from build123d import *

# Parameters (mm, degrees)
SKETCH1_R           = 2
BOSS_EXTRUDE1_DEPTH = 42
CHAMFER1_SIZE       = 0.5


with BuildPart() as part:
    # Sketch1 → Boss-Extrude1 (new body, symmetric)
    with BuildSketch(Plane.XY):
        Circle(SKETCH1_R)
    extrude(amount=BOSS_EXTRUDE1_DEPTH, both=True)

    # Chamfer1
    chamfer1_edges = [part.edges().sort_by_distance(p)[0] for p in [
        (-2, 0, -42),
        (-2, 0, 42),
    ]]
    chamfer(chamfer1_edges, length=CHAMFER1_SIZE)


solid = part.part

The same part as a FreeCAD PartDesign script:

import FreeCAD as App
import Part
import Sketcher
from FreeCAD import Vector
Q = App.Units.Quantity


def edges_at(feature, points):
    """Names of the edges that pass closest to the given points."""
    edges = feature.Shape.Edges
    near = lambda p: min(range(len(edges)), key=lambda i: edges[i].distToShape(Part.Vertex(*p))[0])
    return sorted({f"Edge{near(p) + 1}" for p in points})

doc = App.newDocument("Part")
body = doc.addObject("PartDesign::Body", "Body")

sketch1 = doc.addObject("Sketcher::SketchObject", "Sketch")
body.addObject(sketch1)
sketch1.AttachmentSupport = (doc.XY_Plane, [""])
sketch1.MapMode = "FlatFace"
sketch1.addGeometry(Part.Circle(Vector(0, 0, 0), Vector(0, 0, 1), 2), False)
sketch1.addConstraint(Sketcher.Constraint("Coincident", 0, 3, -1, 1))
sketch1.addConstraint(Sketcher.Constraint("Diameter", 0, Q("4 mm")))
pad1 = doc.addObject("PartDesign::Pad", "Pad")
body.addObject(pad1)
pad1.Profile = sketch1
pad1.Length = 84
pad1.Midplane = True
doc.recompute()

chamfer = doc.addObject("PartDesign::Chamfer", "Chamfer")
body.addObject(chamfer)
chamfer.Base = (pad1, edges_at(pad1, [(-2, 0, -42), (-2, 0, 42)]))
chamfer.Size = 0.5

doc.recompute()
